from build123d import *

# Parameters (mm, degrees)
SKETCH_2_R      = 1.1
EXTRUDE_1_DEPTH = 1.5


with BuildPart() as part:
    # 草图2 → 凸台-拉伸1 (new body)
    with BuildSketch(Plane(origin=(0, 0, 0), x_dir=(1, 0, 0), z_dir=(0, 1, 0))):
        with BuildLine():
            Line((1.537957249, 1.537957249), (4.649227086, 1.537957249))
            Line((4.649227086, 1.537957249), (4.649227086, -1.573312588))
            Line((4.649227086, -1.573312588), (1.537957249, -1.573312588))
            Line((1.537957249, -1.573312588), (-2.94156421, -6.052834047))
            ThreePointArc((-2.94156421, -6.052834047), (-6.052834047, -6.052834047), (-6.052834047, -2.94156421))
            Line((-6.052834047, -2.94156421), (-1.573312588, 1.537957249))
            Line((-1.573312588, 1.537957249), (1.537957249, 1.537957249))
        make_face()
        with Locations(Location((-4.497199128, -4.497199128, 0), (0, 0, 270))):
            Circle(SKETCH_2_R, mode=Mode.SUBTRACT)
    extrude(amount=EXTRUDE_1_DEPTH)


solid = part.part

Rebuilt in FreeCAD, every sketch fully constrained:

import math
import FreeCAD as App
import Part
import Sketcher

V = App.Vector
Q = App.Units.Quantity

doc = App.newDocument("Part")
params = doc.addObject("Spreadsheet::Sheet", "Params")
for row, (alias, value) in enumerate([
    ("sketch1_diameter", "2.2 mm"),
    ("sketch1_radius", "2.2 mm"),
    ("pad1_length", "1.5 mm"),
], start=1):
    params.set(f"A{row}", alias)
    params.set(f"B{row}", "=" + value)
    params.setAlias(f"B{row}", alias)

body = doc.addObject("PartDesign::Body", "Body")

sketch1 = body.newObject("Sketcher::SketchObject", "Sketch")
sketch1.AttachmentSupport = (doc.getObject("XZ_Plane"), [""])
sketch1.MapMode = "FlatFace"
sketch1.addGeometry([
    Part.LineSegment(V(4.6, 1.6, 0), V(4.6, -1.5, 0)),
    Part.LineSegment(V(4.6, -1.5, 0), V(-1.6, -1.5, 0)),
    Part.LineSegment(V(-1.6, -1.5, 0), V(-6.1, 2.9, 0)),
    Part.ArcOfCircle(Part.Circle(V(-4.5, 4.5, 0), V(0, 0, 1), 2.2), math.radians(45), math.radians(225)),
    Part.LineSegment(V(-2.9, 6.1, 0), V(1.5, 1.6, 0)),
    Part.LineSegment(V(1.5, 1.6, 0), V(4.6, 1.6, 0)),
    Part.Circle(V(-4.5, 4.5, 0), V(0, 0, 1), 1.1),
], False)
sketch1.addConstraint([
    Sketcher.Constraint("Coincident", 0, 2, 1, 1),
    Sketcher.Constraint("Coincident", 1, 2, 2, 1),
    Sketcher.Constraint("Tangent", 2, 2, 3, 2),
    Sketcher.Constraint("Tangent", 3, 1, 4, 1),
    Sketcher.Constraint("Coincident", 4, 2, 5, 1),
    Sketcher.Constraint("Coincident", 5, 2, 0, 1),
    Sketcher.Constraint("Vertical", 0),
    Sketcher.Constraint("Horizontal", 1),
    Sketcher.Constraint("Horizontal", 5),
    Sketcher.Constraint("Coincident", 6, 3, 3, 3),
    Sketcher.Constraint("Parallel", 2, 4),
    Sketcher.Constraint("Equal", 5, 0),
    Sketcher.Constraint("Equal", 2, 4),
    Sketcher.Constraint("Diameter", 6, 2.2),
    Sketcher.Constraint("Radius", 3, 2.2),
    Sketcher.Constraint("Angle", 2, Q("135 deg")),
    Sketcher.Constraint("Distance", 2, 6.335),
    Sketcher.Constraint("DistanceX", 3, 3, -1, 1, 4.497199),
    Sketcher.Constraint("DistanceY", -1, 1, 3, 3, 4.497199),
])
sketch1.setExpression("Constraints[13]", "Params.sketch1_diameter")
sketch1.setExpression("Constraints[14]", "Params.sketch1_radius")
pad1 = body.newObject("PartDesign::Pad", "Pad")
pad1.Profile = sketch1
pad1.setExpression("Length", "Params.pad1_length")
pad1.Reversed = True

doc.recompute()
